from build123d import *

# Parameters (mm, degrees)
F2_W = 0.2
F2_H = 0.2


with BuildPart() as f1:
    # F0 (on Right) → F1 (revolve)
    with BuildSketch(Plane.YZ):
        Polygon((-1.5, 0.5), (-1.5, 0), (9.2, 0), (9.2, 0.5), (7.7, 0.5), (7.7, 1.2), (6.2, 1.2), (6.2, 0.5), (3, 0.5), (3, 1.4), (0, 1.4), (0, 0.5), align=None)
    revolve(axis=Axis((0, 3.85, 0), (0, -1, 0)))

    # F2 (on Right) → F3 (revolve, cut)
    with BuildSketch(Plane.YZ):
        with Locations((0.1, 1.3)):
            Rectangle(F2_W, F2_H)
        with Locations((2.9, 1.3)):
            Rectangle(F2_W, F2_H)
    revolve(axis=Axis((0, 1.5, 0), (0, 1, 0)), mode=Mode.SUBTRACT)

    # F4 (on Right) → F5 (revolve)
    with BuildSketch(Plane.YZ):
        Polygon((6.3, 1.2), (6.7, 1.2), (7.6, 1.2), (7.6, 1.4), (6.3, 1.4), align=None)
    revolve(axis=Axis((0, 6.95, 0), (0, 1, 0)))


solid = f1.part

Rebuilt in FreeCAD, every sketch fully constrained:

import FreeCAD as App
import Part
import Sketcher

doc = App.newDocument("Part")
body = doc.addObject("PartDesign::Body", "Body")

sketch1 = body.newObject("Sketcher::SketchObject", "Sketch")
sketch1.AttachmentSupport = (doc.getObject("YZ_Plane"), [""])
sketch1.MapMode = "FlatFace"
sketch1.addGeometry([
    Part.LineSegment(App.Vector(-1.5, 0.5, 0), App.Vector(-1.5, 0, 0)),
    Part.LineSegment(App.Vector(-1.5, 0, 0), App.Vector(9.2, 0, 0)),
    Part.LineSegment(App.Vector(9.2, 0, 0), App.Vector(9.2, 0.5, 0)),
    Part.LineSegment(App.Vector(9.2, 0.5, 0), App.Vector(7.7, 0.5, 0)),
    Part.LineSegment(App.Vector(7.7, 0.5, 0), App.Vector(7.7, 1.2, 0)),
    Part.LineSegment(App.Vector(7.7, 1.2, 0), App.Vector(6.2, 1.2, 0)),
    Part.LineSegment(App.Vector(6.2, 1.2, 0), App.Vector(6.2, 0.5, 0)),
    Part.LineSegment(App.Vector(6.2, 0.5, 0), App.Vector(3, 0.5, 0)),
    Part.LineSegment(App.Vector(3, 0.5, 0), App.Vector(3, 1.4, 0)),
    Part.LineSegment(App.Vector(3, 1.4, 0), App.Vector(0, 1.4, 0)),
    Part.LineSegment(App.Vector(0, 1.4, 0), App.Vector(0, 0.5, 0)),
    Part.LineSegment(App.Vector(0, 0.5, 0), App.Vector(-1.5, 0.5, 0)),
], False)
sketch1.addConstraint([
    Sketcher.Constraint("Coincident", 0, 2, 1, 1),
    Sketcher.Constraint("Coincident", 1, 2, 2, 1),
    Sketcher.Constraint("Coincident", 2, 2, 3, 1),
    Sketcher.Constraint("Coincident", 3, 2, 4, 1),
    Sketcher.Constraint("Coincident", 4, 2, 5, 1),
    Sketcher.Constraint("Coincident", 5, 2, 6, 1),
    Sketcher.Constraint("Coincident", 6, 2, 7, 1),
    Sketcher.Constraint("Coincident", 7, 2, 8, 1),
    Sketcher.Constraint("Coincident", 8, 2, 9, 1),
    Sketcher.Constraint("Coincident", 9, 2, 10, 1),
    Sketcher.Constraint("Coincident", 10, 2, 11, 1),
    Sketcher.Constraint("Coincident", 11, 2, 0, 1),
    Sketcher.Constraint("Vertical", 0),
    Sketcher.Constraint("Horizontal", 1),
    Sketcher.Constraint("Vertical", 2),
    Sketcher.Constraint("Horizontal", 3),
    Sketcher.Constraint("Vertical", 4),
    Sketcher.Constraint("Horizontal", 5),
    Sketcher.Constraint("Vertical", 6),
    Sketcher.Constraint("Horizontal", 7),
    Sketcher.Constraint("Vertical", 8),
    Sketcher.Constraint("Horizontal", 9),
    Sketcher.Constraint("Vertical", 10),
    Sketcher.Constraint("Horizontal", 11),
    Sketcher.Constraint("PointOnObject", 0, 2, -1),
    Sketcher.Constraint("PointOnObject", 9, 2, -2),
    Sketcher.Constraint("Horizontal", 3, 2, 6, 2),
    Sketcher.Constraint("Horizontal", 7, 2, 10, 2),
    Sketcher.Constraint("Equal", 3, 5),
    Sketcher.Constraint("Equal", 5, 11),
    Sketcher.Constraint("DistanceX", 9, 2, 9, 1, 3.0),
    Sketcher.Constraint("DistanceX", 1, 1, 1, 2, 10.7),
    Sketcher.Constraint("DistanceX", 3, 2, 3, 1, 1.5),
    Sketcher.Constraint("DistanceY", 0, 2, 0, 1, 0.5),
    Sketcher.Constraint("DistanceY", 4, 1, 4, 2, 0.7),
    Sketcher.Constraint("DistanceY", 8, 1, 8, 2, 0.9),
])
revolution = body.newObject("PartDesign::Revolution", "Revolution")
revolution.Profile = sketch1
revolution.ReferenceAxis = (sketch1, ["H_Axis"])
revolution.Angle = 360

sketch2 = body.newObject("Sketcher::SketchObject", "Sketch001")
sketch2.AttachmentSupport = (doc.getObject("YZ_Plane"), [""])
sketch2.MapMode = "FlatFace"
sketch2.addGeometry([
    Part.LineSegment(App.Vector(0, 1.4, 0), App.Vector(0, 1.2, 0)),
    Part.LineSegment(App.Vector(0, 1.2, 0), App.Vector(0.2, 1.2, 0)),
    Part.LineSegment(App.Vector(0.2, 1.2, 0), App.Vector(0.2, 1.4, 0)),
    Part.LineSegment(App.Vector(0.2, 1.4, 0), App.Vector(0, 1.4, 0)),
    Part.LineSegment(App.Vector(2.8, 1.4, 0), App.Vector(2.8, 1.2, 0)),
    Part.LineSegment(App.Vector(2.8, 1.2, 0), App.Vector(3, 1.2, 0)),
    Part.LineSegment(App.Vector(3, 1.2, 0), App.Vector(3, 1.4, 0)),
    Part.LineSegment(App.Vector(3, 1.4, 0), App.Vector(2.8, 1.4, 0)),
], False)
sketch2.addConstraint([
    Sketcher.Constraint("Coincident", 0, 2, 1, 1),
    Sketcher.Constraint("Coincident", 1, 2, 2, 1),
    Sketcher.Constraint("Coincident", 2, 2, 3, 1),
    Sketcher.Constraint("Coincident", 3, 2, 0, 1),
    Sketcher.Constraint("Coincident", 4, 2, 5, 1),
    Sketcher.Constraint("Coincident", 5, 2, 6, 1),
    Sketcher.Constraint("Coincident", 6, 2, 7, 1),
    Sketcher.Constraint("Coincident", 7, 2, 4, 1),
    Sketcher.Constraint("Vertical", 0),
    Sketcher.Constraint("Horizontal", 1),
    Sketcher.Constraint("Vertical", 2),
    Sketcher.Constraint("Horizontal", 3),
    Sketcher.Constraint("Vertical", 4),
    Sketcher.Constraint("Horizontal", 5),
    Sketcher.Constraint("Vertical", 6),
    Sketcher.Constraint("Horizontal", 7),
    Sketcher.Constraint("PointOnObject", 0, 2, -2),
    Sketcher.Constraint("Horizontal", 1, 2, 4, 2),
    Sketcher.Constraint("Horizontal", 3, 2, 6, 2),
    Sketcher.Constraint("Equal", 3, 5),
    Sketcher.Constraint("Equal", 7, 0),
    Sketcher.Constraint("DistanceX", 1, 1, 1, 2, 0.2),
    Sketcher.Constraint("DistanceX", -1, 1, 5, 2, 3.0),
    Sketcher.Constraint("DistanceY", -1, 1, 0, 2, 1.2),
])
groove = body.newObject("PartDesign::Groove", "Groove")
groove.Profile = sketch2
groove.ReferenceAxis = (sketch2, ["H_Axis"])
groove.Angle = 360

sketch3 = body.newObject("Sketcher::SketchObject", "Sketch002")
sketch3.AttachmentSupport = (doc.getObject("YZ_Plane"), [""])
sketch3.MapMode = "FlatFace"
sketch3.addGeometry([
    Part.LineSegment(App.Vector(6.3, 1.2, 0), App.Vector(7.6, 1.2, 0)),
    Part.LineSegment(App.Vector(7.6, 1.2, 0), App.Vector(7.6, 1.4, 0)),
    Part.LineSegment(App.Vector(7.6, 1.4, 0), App.Vector(6.3, 1.4, 0)),
    Part.LineSegment(App.Vector(6.3, 1.4, 0), App.Vector(6.3, 1.2, 0)),
], False)
sketch3.addConstraint([
    Sketcher.Constraint("Coincident", 0, 2, 1, 1),
    Sketcher.Constraint("Coincident", 1, 2, 2, 1),
    Sketcher.Constraint("Coincident", 2, 2, 3, 1),
    Sketcher.Constraint("Coincident", 3, 2, 0, 1),
    Sketcher.Constraint("Horizontal", 0),
    Sketcher.Constraint("Vertical", 1),
    Sketcher.Constraint("Horizontal", 2),
    Sketcher.Constraint("Vertical", 3),
    Sketcher.Constraint("DistanceX", 0, 1, 0, 2, 1.3),
    Sketcher.Constraint("DistanceY", 1, 1, 1, 2, 0.2),
    Sketcher.Constraint("DistanceX", -1, 1, 0, 2, 7.6),
    Sketcher.Constraint("DistanceY", -1, 1, 0, 2, 1.2),
])
revolution2 = body.newObject("PartDesign::Revolution", "Revolution001")
revolution2.Profile = sketch3
revolution2.ReferenceAxis = (sketch3, ["H_Axis"])
revolution2.Angle = 360

doc.recompute()
